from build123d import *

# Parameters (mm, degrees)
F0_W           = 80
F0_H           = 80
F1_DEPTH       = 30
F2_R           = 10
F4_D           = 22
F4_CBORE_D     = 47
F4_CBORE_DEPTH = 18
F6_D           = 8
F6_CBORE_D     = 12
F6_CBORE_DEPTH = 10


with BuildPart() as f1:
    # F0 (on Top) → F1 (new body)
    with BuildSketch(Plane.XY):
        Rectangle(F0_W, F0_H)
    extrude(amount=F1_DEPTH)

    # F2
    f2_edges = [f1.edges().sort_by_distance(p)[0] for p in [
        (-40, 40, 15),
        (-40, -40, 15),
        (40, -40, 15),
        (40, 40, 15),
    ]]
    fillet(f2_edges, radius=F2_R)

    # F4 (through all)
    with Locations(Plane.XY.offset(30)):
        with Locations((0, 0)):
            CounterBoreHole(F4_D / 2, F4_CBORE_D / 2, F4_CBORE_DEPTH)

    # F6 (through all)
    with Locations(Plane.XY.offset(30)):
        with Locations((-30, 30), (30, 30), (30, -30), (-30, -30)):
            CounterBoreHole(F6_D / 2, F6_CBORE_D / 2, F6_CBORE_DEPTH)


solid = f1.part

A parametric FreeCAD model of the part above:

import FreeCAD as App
import Part
import Sketcher


def edges_at(feature, points):
    """Names of the edges that pass closest to the given points."""
    edges = feature.Shape.Edges
    near = lambda p: min(range(len(edges)), key=lambda i: edges[i].distToShape(Part.Vertex(*p))[0])
    return sorted({f"Edge{near(p) + 1}" for p in points})

doc = App.newDocument("Part")
body = doc.addObject("PartDesign::Body", "Body")

# Sketch on XY plane
sketch1 = body.newObject("Sketcher::SketchObject", "Sketch")
sketch1.AttachmentSupport = (doc.getObject("XY_Plane"), [""])
sketch1.MapMode = "FlatFace"
sketch1.addGeometry([
    Part.LineSegment(App.Vector(-40, 40, 0), App.Vector(-40, -40, 0)),
    Part.LineSegment(App.Vector(-40, -40, 0), App.Vector(40, -40, 0)),
    Part.LineSegment(App.Vector(40, -40, 0), App.Vector(40, 40, 0)),
    Part.LineSegment(App.Vector(40, 40, 0), App.Vector(-40, 40, 0)),
], False)
sketch1.addConstraint([
    Sketcher.Constraint("Coincident", 0, 2, 1, 1),
    Sketcher.Constraint("Coincident", 1, 2, 2, 1),
    Sketcher.Constraint("Coincident", 2, 2, 3, 1),
    Sketcher.Constraint("Coincident", 3, 2, 0, 1),
    Sketcher.Constraint("Vertical", 0),
    Sketcher.Constraint("Horizontal", 1),
    Sketcher.Constraint("Vertical", 2),
    Sketcher.Constraint("Horizontal", 3),
    Sketcher.Constraint("Symmetric", 0, 2, 2, 2, -1, 1),
    Sketcher.Constraint("Equal", 3, 0),
    Sketcher.Constraint("DistanceX", 1, 1, 1, 2, 80.0),
])
pad1 = body.newObject("PartDesign::Pad", "Pad")
pad1.Profile = sketch1
pad1.Length = 30
doc.recompute()

fillet = body.newObject("PartDesign::Fillet", "Fillet")
fillet.Base = (pad1, edges_at(pad1, [
    (-40, 40, 15),
    (-40, -40, 15),
    (40, -40, 15),
    (40, 40, 15),
]))
fillet.Radius = 10

# Sketch on XY plane
sketch2 = body.newObject("Sketcher::SketchObject", "Sketch001")
sketch2.AttachmentSupport = (doc.getObject("XY_Plane"), [""])
sketch2.MapMode = "FlatFace"
sketch2.AttachmentOffset = App.Placement(App.Vector(0, 0, 30), App.Rotation())
sketch2.addGeometry(Part.Circle(App.Vector(0, 0, 0), App.Vector(0, 0, 1), 11), False)
sketch2.addConstraint([
    Sketcher.Constraint("Coincident", 0, 3, -1, 1),
    Sketcher.Constraint("Diameter", 0, 22.0),
])
doc.recompute()
hole = body.newObject("PartDesign::Hole", "Hole")
hole.Profile = sketch2
hole.ThreadType = "None"
hole.Diameter = 22
hole.DepthType = "ThroughAll"
hole.HoleCutType = "Counterbore"
hole.HoleCutDiameter = 47
hole.HoleCutDepth = 18

# Sketch on XY plane
sketch3 = body.newObject("Sketcher::SketchObject", "Sketch002")
sketch3.AttachmentSupport = (doc.getObject("XY_Plane"), [""])
sketch3.MapMode = "FlatFace"
sketch3.AttachmentOffset = App.Placement(App.Vector(0, 0, 30), App.Rotation())
sketch3.addGeometry([
    Part.Circle(App.Vector(-30, 30, 0), App.Vector(0, 0, 1), 4),
    Part.Circle(App.Vector(30, 30, 0), App.Vector(0, 0, 1), 4),
    Part.Circle(App.Vector(30, -30, 0), App.Vector(0, 0, 1), 4),
    Part.Circle(App.Vector(-30, -30, 0), App.Vector(0, 0, 1), 4),
], False)
sketch3.addConstraint([
    Sketcher.Constraint("Equal", 0, 1),
    Sketcher.Constraint("Equal", 1, 2),
    Sketcher.Constraint("Equal", 2, 3),
    Sketcher.Constraint("Symmetric", 0, 3, 2, 3, -1, 1),
    Sketcher.Constraint("Symmetric", 1, 3, 3, 3, -1, 1),
    Sketcher.Constraint("Symmetric", 0, 3, 1, 3, -2),
    Sketcher.Constraint("Diameter", 0, 8.0),
    Sketcher.Constraint("DistanceX", 0, 3, -1, 1, 30.0),
    Sketcher.Constraint("DistanceY", -1, 1, 0, 3, 30.0),
])
doc.recompute()
hole2 = body.newObject("PartDesign::Hole", "Hole001")
hole2.Profile = sketch3
hole2.ThreadType = "None"
hole2.Diameter = 8
hole2.DepthType = "ThroughAll"
hole2.HoleCutType = "Counterbore"
hole2.HoleCutDiameter = 12
hole2.HoleCutDepth = 10

doc.recompute()
